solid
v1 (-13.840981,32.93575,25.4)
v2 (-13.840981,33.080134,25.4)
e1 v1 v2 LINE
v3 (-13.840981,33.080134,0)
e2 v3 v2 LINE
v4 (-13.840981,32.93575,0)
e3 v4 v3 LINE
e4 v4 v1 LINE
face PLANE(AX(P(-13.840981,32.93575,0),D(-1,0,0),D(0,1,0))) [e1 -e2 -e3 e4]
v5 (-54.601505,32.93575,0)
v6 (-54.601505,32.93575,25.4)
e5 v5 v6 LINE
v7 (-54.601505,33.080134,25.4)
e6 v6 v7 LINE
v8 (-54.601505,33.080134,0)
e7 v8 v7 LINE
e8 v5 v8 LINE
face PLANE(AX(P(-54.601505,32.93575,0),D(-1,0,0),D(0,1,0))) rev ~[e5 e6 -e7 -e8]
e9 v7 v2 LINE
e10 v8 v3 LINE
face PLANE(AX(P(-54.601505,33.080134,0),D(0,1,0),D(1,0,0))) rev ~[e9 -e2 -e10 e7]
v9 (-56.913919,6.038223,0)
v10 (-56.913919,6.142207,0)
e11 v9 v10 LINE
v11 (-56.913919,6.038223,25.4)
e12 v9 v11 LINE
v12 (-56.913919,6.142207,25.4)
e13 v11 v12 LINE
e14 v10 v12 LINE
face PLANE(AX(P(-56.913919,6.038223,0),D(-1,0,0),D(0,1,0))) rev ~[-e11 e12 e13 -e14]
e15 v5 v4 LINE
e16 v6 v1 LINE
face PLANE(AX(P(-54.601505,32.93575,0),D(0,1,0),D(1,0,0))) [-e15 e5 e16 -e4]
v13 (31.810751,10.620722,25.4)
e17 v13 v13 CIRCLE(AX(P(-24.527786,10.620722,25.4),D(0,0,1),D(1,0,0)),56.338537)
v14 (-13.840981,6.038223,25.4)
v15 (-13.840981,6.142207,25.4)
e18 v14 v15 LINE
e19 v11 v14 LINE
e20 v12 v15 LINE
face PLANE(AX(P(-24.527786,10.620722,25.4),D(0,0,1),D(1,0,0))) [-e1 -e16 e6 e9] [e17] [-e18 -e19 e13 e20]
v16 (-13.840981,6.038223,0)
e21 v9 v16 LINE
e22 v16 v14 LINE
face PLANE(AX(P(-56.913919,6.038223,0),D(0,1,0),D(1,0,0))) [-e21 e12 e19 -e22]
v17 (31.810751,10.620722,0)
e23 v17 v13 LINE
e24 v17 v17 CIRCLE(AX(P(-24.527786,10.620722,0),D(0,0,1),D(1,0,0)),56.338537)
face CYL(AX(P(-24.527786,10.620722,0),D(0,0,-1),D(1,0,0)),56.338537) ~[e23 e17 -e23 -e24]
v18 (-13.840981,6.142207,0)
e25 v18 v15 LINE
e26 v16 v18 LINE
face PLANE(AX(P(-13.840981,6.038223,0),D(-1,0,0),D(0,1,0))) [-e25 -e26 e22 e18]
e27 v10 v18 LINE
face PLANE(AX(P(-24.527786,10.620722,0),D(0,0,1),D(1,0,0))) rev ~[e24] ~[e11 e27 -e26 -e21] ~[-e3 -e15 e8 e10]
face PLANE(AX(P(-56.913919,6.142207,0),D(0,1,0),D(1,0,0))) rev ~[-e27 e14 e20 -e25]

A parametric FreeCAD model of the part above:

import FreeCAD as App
import Part
import Sketcher
Q = App.Units.Quantity


def add_polygon(sketch, points):
    """Adds a closed chain of lines whose ends are joined by coincident constraints."""
    first, n = sketch.GeometryCount, len(points)
    for a, b in zip(points, points[1:] + points[:1]):
        sketch.addGeometry(Part.LineSegment(App.Vector(*a, 0), App.Vector(*b, 0)), False)
    for i in range(n):
        sketch.addConstraint(Sketcher.Constraint("Coincident", first + i, 2, first + (i + 1) % n, 1))

doc = App.newDocument("Part")
body = doc.addObject("PartDesign::Body", "Body")

# Sketch on XY plane
sketch1 = body.newObject("Sketcher::SketchObject", "Sketch")
sketch1.AttachmentSupport = (doc.getObject("XY_Plane"), [""])
sketch1.MapMode = "FlatFace"
sketch1.addGeometry(Part.Circle(App.Vector(-24.53, 10.62, 0), App.Vector(0, 0, 1), 56.34), False)  # 0
add_polygon(sketch1, [(-13.84, 6.04), (-56.91, 6.04), (-56.91, 6.14), (-13.84, 6.14)])  # lines 1-4
add_polygon(sketch1, [(-13.84, 32.94), (-54.6, 32.94), (-54.6, 33.08), (-13.84, 33.08)])  # lines 5-8
sketch1.addConstraint([
    Sketcher.Constraint("Horizontal", 1),
    Sketcher.Constraint("Vertical", 2),
    Sketcher.Constraint("Horizontal", 3),
    Sketcher.Constraint("Vertical", 4),
    Sketcher.Constraint("Horizontal", 5),
    Sketcher.Constraint("Vertical", 6),
    Sketcher.Constraint("Horizontal", 7),
    Sketcher.Constraint("Vertical", 8),
    Sketcher.Constraint("Vertical", 4, 2, 7, 2),
    Sketcher.Constraint("Diameter", 0, 112.677074),
    Sketcher.Constraint("DistanceX", 1, 2, 1, 1, 43.072939),
    Sketcher.Constraint("DistanceY", 1, 2, 0, 3, 4.582499),
    Sketcher.Constraint("DistanceX", 5, 2, 5, 1, 40.760524),
    Sketcher.Constraint("DistanceY", 2, 1, 2, 2, 0.103983),
    Sketcher.Constraint("DistanceY", 6, 1, 6, 2, 0.144385),
    Sketcher.Constraint("DistanceX", 1, 2, -1, 1, 56.913919),
    Sketcher.Constraint("DistanceY", -1, 1, 5, 2, 32.93575),
    Sketcher.Constraint("DistanceX", 5, 2, 0, 3, 30.073719),
    Sketcher.Constraint("DistanceY", 1, 2, 6, 2, 27.041911),
])
pad1 = body.newObject("PartDesign::Pad", "Pad")
pad1.Profile = sketch1
pad1.Length = Q("1 in")

doc.recompute()
